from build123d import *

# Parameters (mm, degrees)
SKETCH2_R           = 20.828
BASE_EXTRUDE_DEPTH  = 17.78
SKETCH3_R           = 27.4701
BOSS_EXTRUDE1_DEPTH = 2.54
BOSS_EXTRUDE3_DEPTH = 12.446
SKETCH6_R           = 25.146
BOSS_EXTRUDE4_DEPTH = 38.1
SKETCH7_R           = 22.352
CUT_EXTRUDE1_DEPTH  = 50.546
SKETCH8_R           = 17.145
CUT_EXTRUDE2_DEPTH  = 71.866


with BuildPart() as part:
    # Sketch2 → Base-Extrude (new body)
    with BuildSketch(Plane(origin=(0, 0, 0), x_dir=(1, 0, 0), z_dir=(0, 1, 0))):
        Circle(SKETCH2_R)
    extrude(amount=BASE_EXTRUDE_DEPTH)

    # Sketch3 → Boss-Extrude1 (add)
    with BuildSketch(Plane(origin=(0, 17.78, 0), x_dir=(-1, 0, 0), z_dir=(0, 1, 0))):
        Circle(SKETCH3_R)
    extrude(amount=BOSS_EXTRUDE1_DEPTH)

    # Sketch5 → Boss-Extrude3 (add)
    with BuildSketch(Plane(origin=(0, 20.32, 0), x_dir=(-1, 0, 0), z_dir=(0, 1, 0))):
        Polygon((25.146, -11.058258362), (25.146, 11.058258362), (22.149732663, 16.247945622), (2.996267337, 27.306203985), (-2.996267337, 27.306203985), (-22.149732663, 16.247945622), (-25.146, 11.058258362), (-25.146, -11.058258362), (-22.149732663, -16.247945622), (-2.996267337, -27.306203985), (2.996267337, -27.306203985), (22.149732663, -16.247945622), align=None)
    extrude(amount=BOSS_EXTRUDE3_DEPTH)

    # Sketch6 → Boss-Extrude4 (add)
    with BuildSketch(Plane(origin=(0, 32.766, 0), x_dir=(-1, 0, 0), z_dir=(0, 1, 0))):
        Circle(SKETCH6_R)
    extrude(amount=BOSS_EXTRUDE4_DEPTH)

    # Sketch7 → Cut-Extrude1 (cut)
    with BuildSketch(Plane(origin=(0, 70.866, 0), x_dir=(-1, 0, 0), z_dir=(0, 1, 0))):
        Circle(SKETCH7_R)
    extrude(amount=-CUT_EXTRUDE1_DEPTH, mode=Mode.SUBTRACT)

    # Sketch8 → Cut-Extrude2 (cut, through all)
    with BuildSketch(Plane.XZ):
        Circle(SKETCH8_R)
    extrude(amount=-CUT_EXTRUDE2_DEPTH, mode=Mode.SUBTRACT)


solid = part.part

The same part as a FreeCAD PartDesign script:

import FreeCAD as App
import Part
import Sketcher
from FreeCAD import Vector
Q = App.Units.Quantity


def add_polygon(sketch, points):
    """Adds a closed chain of lines whose ends are joined by coincident constraints."""
    first, n = sketch.GeometryCount, len(points)
    for a, b in zip(points, points[1:] + points[:1]):
        sketch.addGeometry(Part.LineSegment(App.Vector(*a, 0), App.Vector(*b, 0)), False)
    for i in range(n):
        sketch.addConstraint(Sketcher.Constraint("Coincident", first + i, 2, first + (i + 1) % n, 1))

doc = App.newDocument("Part")
params = doc.addObject("Spreadsheet::Sheet", "Params")
for row, (alias, value) in enumerate([
    ("sketch1_diameter", "1.64 in"),
    ("pad1_length", "0.7 in"),
    ("sketch2_diameter", "2.163 in"),
    ("pad2_length", "0.1 in"),
    ("pad3_length", "0.49 in"),
    ("sketch4_diameter", "1.98 in"),
    ("pad4_length", "1.5 in"),
    ("sketch5_diameter", "1.76 in"),
    ("pocket1_length", "1.99 in"),
    ("sketch6_diameter", "1.35 in"),
], start=1):
    params.set(f"A{row}", alias)
    params.set(f"B{row}", "=" + value)
    params.setAlias(f"B{row}", alias)

body = doc.addObject("PartDesign::Body", "Body")

sketch1 = body.newObject("Sketcher::SketchObject", "Sketch")
sketch1.AttachmentSupport = (doc.getObject("XZ_Plane"), [""])
sketch1.MapMode = "FlatFace"
sketch1.addGeometry(Part.Circle(Vector(0, 0, 0), Vector(0, 0, 1), 20.828), False)
sketch1.addConstraint([
    Sketcher.Constraint("Coincident", 0, 3, -1, 1),
    Sketcher.Constraint("Diameter", 0, Q("1.64 in")),
])
sketch1.setExpression("Constraints[1]", "Params.sketch1_diameter")
pad1 = body.newObject("PartDesign::Pad", "Pad")
pad1.Profile = sketch1
pad1.setExpression("Length", "Params.pad1_length")
pad1.Reversed = True

sketch2 = body.newObject("Sketcher::SketchObject", "Sketch001")
sketch2.AttachmentSupport = (doc.getObject("XZ_Plane"), [""])
sketch2.MapMode = "FlatFace"
sketch2.AttachmentOffset = App.Placement(Vector(0, 0, -0.7 * 25.4), App.Rotation())
sketch2.addGeometry(Part.Circle(Vector(0, 0, 0), Vector(0, 0, 1), 27.4701), False)
sketch2.addConstraint([
    Sketcher.Constraint("Coincident", 0, 3, -1, 1),
    Sketcher.Constraint("Diameter", 0, Q("2.163 in")),
])
sketch2.setExpression("Constraints[1]", "Params.sketch2_diameter")
pad2 = body.newObject("PartDesign::Pad", "Pad001")
pad2.Profile = sketch2
pad2.setExpression("Length", "Params.pad2_length")
pad2.Reversed = True

sketch3 = body.newObject("Sketcher::SketchObject", "Sketch002")
sketch3.AttachmentSupport = (doc.getObject("XZ_Plane"), [""])
sketch3.MapMode = "FlatFace"
sketch3.AttachmentOffset = App.Placement(Vector(0, 0, -0.8 * 25.4), App.Rotation())
add_polygon(sketch3, [(-25.146, -11.058258), (-25.146, 11.058258), (-22.149733, 16.247946), (-2.996267, 27.306204), (2.996267, 27.306204), (22.149733, 16.247946), (25.146, 11.058258), (25.146, -11.058258), (22.149733, -16.247946), (2.996267, -27.306204), (-2.996267, -27.306204), (-22.149733, -16.247946)])
sketch3.addConstraint([
    Sketcher.Constraint("Vertical", 0),
    Sketcher.Constraint("Horizontal", 3),
    Sketcher.Constraint("Vertical", 6),
    Sketcher.Constraint("Horizontal", 9),
    Sketcher.Constraint("Symmetric", 0, 2, 6, 2, -1, 1),
    Sketcher.Constraint("Symmetric", 1, 2, 7, 2, -1, 1),
    Sketcher.Constraint("Symmetric", 2, 2, 8, 2, -1, 1),
    Sketcher.Constraint("Symmetric", 4, 2, 10, 2, -1, 1),
    Sketcher.Constraint("Symmetric", 1, 2, 4, 2, -2),
    Sketcher.Constraint("Perpendicular", 1, 4),
    Sketcher.Constraint("Perpendicular", 2, 5),
    Sketcher.Constraint("Perpendicular", 7, 10),
    Sketcher.Constraint("Perpendicular", 8, 11),
    Sketcher.Constraint("Horizontal", 0, 2, 5, 2),
    Sketcher.Constraint("Angle", 1, Q("60 deg")),
    Sketcher.Constraint("DistanceX", 0, 2, -1, 1, Q("0.99 in")),
    Sketcher.Constraint("DistanceX", 1, 2, 3, 2, Q("0.99 in")),
    Sketcher.Constraint("DistanceX", 3, 1, 3, 2, 5.992535),
    Sketcher.Constraint("DistanceY", 0, 1, 0, 2, 22.116517),
])
pad3 = body.newObject("PartDesign::Pad", "Pad002")
pad3.Profile = sketch3
pad3.setExpression("Length", "Params.pad3_length")
pad3.Reversed = True

sketch4 = body.newObject("Sketcher::SketchObject", "Sketch003")
sketch4.AttachmentSupport = (doc.getObject("XZ_Plane"), [""])
sketch4.MapMode = "FlatFace"
sketch4.AttachmentOffset = App.Placement(Vector(0, 0, -1.29 * 25.4), App.Rotation())
sketch4.addGeometry(Part.Circle(Vector(0, 0, 0), Vector(0, 0, 1), 25.146), False)
sketch4.addConstraint([
    Sketcher.Constraint("Coincident", 0, 3, -1, 1),
    Sketcher.Constraint("Diameter", 0, Q("1.98 in")),
])
sketch4.setExpression("Constraints[1]", "Params.sketch4_diameter")
pad4 = body.newObject("PartDesign::Pad", "Pad003")
pad4.Profile = sketch4
pad4.setExpression("Length", "Params.pad4_length")
pad4.Reversed = True

sketch5 = body.newObject("Sketcher::SketchObject", "Sketch004")
sketch5.AttachmentSupport = (doc.getObject("XZ_Plane"), [""])
sketch5.MapMode = "FlatFace"
sketch5.AttachmentOffset = App.Placement(Vector(0, 0, -2.79 * 25.4), App.Rotation())
sketch5.addGeometry(Part.Circle(Vector(0, 0, 0), Vector(0, 0, 1), 22.352), False)
sketch5.addConstraint([
    Sketcher.Constraint("Coincident", 0, 3, -1, 1),
    Sketcher.Constraint("Diameter", 0, Q("1.76 in")),
])
sketch5.setExpression("Constraints[1]", "Params.sketch5_diameter")
pocket1 = body.newObject("PartDesign::Pocket", "Pocket")
pocket1.Profile = sketch5
pocket1.setExpression("Length", "Params.pocket1_length")
pocket1.Reversed = True

sketch6 = body.newObject("Sketcher::SketchObject", "Sketch005")
sketch6.AttachmentSupport = (doc.getObject("XZ_Plane"), [""])
sketch6.MapMode = "FlatFace"
sketch6.addGeometry(Part.Circle(Vector(0, 0, 0), Vector(0, 0, 1), 17.145), False)
sketch6.addConstraint([
    Sketcher.Constraint("Coincident", 0, 3, -1, 1),
    Sketcher.Constraint("Diameter", 0, Q("1.35 in")),
])
sketch6.setExpression("Constraints[1]", "Params.sketch6_diameter")
pocket2 = body.newObject("PartDesign::Pocket", "Pocket001")
pocket2.Profile = sketch6
pocket2.Type = "ThroughAll"

doc.recompute()
